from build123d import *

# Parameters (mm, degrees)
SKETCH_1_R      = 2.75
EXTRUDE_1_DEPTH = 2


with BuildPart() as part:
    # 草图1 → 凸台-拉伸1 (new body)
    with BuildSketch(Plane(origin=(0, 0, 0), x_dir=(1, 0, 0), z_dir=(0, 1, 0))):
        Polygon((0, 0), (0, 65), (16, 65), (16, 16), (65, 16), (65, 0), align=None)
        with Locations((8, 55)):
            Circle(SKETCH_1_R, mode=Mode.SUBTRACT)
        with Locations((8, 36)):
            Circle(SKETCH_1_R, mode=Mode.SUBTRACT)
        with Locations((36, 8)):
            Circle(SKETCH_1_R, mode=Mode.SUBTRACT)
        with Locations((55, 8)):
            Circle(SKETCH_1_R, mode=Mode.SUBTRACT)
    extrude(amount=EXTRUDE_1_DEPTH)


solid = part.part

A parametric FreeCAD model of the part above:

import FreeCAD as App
import Part
import Sketcher

V = App.Vector

doc = App.newDocument("Part")
body = doc.addObject("PartDesign::Body", "Body")

# Sketch on XZ plane
sketch1 = body.newObject("Sketcher::SketchObject", "Sketch")
sketch1.AttachmentSupport = (doc.getObject("XZ_Plane"), [""])
sketch1.MapMode = "FlatFace"
sketch1.addGeometry([
    Part.LineSegment(V(0, -65, 0), V(0, 0, 0)),  # 0
    Part.LineSegment(V(0, 0, 0), V(65, 0, 0)),  # 1
    Part.LineSegment(V(65, 0, 0), V(65, -16, 0)),  # 2
    Part.LineSegment(V(65, -16, 0), V(16, -16, 0)),  # 3
    Part.LineSegment(V(16, -16, 0), V(16, -65, 0)),  # 4
    Part.LineSegment(V(16, -65, 0), V(0, -65, 0)),  # 5
    Part.Circle(V(55, -8, 0), V(0, 0, 1), 2.8),  # 6
    Part.Circle(V(36, -8, 0), V(0, 0, 1), 2.8),  # 7
    Part.Circle(V(8, -36, 0), V(0, 0, 1), 2.8),  # 8
    Part.Circle(V(8, -55, 0), V(0, 0, 1), 2.8),  # 9
], False)
sketch1.addConstraint([
    Sketcher.Constraint("Coincident", 0, 2, 1, 1),
    Sketcher.Constraint("Coincident", 1, 2, 2, 1),
    Sketcher.Constraint("Coincident", 2, 2, 3, 1),
    Sketcher.Constraint("Coincident", 3, 2, 4, 1),
    Sketcher.Constraint("Coincident", 4, 2, 5, 1),
    Sketcher.Constraint("Coincident", 5, 2, 0, 1),
    Sketcher.Constraint("Vertical", 0),
    Sketcher.Constraint("Horizontal", 1),
    Sketcher.Constraint("Vertical", 2),
    Sketcher.Constraint("Horizontal", 3),
    Sketcher.Constraint("Vertical", 4),
    Sketcher.Constraint("Horizontal", 5),
    Sketcher.Constraint("Coincident", 0, 2, -1, 1),
    Sketcher.Constraint("Equal", 6, 7),
    Sketcher.Constraint("Equal", 7, 8),
    Sketcher.Constraint("Equal", 8, 9),
    Sketcher.Constraint("Horizontal", 6, 3, 7, 3),
    Sketcher.Constraint("Vertical", 8, 3, 9, 3),
    Sketcher.Constraint("Equal", 1, 0),
    Sketcher.Constraint("Equal", 5, 2),
    Sketcher.Constraint("Diameter", 6, 5.5),
    Sketcher.Constraint("DistanceX", 1, 1, 1, 2, 65.0),
    Sketcher.Constraint("DistanceX", 3, 2, 3, 1, 49.0),
    Sketcher.Constraint("DistanceX", -1, 1, 6, 3, 55.0),
    Sketcher.Constraint("DistanceY", 6, 3, -1, 1, 8.0),
    Sketcher.Constraint("DistanceX", -1, 1, 7, 3, 36.0),
    Sketcher.Constraint("DistanceX", -1, 1, 8, 3, 8.0),
    Sketcher.Constraint("DistanceY", 8, 3, -1, 1, 36.0),
    Sketcher.Constraint("DistanceY", 9, 3, -1, 1, 55.0),
])
pad1 = body.newObject("PartDesign::Pad", "Pad")
pad1.Profile = sketch1
pad1.Length = 2
pad1.Reversed = True

doc.recompute()
